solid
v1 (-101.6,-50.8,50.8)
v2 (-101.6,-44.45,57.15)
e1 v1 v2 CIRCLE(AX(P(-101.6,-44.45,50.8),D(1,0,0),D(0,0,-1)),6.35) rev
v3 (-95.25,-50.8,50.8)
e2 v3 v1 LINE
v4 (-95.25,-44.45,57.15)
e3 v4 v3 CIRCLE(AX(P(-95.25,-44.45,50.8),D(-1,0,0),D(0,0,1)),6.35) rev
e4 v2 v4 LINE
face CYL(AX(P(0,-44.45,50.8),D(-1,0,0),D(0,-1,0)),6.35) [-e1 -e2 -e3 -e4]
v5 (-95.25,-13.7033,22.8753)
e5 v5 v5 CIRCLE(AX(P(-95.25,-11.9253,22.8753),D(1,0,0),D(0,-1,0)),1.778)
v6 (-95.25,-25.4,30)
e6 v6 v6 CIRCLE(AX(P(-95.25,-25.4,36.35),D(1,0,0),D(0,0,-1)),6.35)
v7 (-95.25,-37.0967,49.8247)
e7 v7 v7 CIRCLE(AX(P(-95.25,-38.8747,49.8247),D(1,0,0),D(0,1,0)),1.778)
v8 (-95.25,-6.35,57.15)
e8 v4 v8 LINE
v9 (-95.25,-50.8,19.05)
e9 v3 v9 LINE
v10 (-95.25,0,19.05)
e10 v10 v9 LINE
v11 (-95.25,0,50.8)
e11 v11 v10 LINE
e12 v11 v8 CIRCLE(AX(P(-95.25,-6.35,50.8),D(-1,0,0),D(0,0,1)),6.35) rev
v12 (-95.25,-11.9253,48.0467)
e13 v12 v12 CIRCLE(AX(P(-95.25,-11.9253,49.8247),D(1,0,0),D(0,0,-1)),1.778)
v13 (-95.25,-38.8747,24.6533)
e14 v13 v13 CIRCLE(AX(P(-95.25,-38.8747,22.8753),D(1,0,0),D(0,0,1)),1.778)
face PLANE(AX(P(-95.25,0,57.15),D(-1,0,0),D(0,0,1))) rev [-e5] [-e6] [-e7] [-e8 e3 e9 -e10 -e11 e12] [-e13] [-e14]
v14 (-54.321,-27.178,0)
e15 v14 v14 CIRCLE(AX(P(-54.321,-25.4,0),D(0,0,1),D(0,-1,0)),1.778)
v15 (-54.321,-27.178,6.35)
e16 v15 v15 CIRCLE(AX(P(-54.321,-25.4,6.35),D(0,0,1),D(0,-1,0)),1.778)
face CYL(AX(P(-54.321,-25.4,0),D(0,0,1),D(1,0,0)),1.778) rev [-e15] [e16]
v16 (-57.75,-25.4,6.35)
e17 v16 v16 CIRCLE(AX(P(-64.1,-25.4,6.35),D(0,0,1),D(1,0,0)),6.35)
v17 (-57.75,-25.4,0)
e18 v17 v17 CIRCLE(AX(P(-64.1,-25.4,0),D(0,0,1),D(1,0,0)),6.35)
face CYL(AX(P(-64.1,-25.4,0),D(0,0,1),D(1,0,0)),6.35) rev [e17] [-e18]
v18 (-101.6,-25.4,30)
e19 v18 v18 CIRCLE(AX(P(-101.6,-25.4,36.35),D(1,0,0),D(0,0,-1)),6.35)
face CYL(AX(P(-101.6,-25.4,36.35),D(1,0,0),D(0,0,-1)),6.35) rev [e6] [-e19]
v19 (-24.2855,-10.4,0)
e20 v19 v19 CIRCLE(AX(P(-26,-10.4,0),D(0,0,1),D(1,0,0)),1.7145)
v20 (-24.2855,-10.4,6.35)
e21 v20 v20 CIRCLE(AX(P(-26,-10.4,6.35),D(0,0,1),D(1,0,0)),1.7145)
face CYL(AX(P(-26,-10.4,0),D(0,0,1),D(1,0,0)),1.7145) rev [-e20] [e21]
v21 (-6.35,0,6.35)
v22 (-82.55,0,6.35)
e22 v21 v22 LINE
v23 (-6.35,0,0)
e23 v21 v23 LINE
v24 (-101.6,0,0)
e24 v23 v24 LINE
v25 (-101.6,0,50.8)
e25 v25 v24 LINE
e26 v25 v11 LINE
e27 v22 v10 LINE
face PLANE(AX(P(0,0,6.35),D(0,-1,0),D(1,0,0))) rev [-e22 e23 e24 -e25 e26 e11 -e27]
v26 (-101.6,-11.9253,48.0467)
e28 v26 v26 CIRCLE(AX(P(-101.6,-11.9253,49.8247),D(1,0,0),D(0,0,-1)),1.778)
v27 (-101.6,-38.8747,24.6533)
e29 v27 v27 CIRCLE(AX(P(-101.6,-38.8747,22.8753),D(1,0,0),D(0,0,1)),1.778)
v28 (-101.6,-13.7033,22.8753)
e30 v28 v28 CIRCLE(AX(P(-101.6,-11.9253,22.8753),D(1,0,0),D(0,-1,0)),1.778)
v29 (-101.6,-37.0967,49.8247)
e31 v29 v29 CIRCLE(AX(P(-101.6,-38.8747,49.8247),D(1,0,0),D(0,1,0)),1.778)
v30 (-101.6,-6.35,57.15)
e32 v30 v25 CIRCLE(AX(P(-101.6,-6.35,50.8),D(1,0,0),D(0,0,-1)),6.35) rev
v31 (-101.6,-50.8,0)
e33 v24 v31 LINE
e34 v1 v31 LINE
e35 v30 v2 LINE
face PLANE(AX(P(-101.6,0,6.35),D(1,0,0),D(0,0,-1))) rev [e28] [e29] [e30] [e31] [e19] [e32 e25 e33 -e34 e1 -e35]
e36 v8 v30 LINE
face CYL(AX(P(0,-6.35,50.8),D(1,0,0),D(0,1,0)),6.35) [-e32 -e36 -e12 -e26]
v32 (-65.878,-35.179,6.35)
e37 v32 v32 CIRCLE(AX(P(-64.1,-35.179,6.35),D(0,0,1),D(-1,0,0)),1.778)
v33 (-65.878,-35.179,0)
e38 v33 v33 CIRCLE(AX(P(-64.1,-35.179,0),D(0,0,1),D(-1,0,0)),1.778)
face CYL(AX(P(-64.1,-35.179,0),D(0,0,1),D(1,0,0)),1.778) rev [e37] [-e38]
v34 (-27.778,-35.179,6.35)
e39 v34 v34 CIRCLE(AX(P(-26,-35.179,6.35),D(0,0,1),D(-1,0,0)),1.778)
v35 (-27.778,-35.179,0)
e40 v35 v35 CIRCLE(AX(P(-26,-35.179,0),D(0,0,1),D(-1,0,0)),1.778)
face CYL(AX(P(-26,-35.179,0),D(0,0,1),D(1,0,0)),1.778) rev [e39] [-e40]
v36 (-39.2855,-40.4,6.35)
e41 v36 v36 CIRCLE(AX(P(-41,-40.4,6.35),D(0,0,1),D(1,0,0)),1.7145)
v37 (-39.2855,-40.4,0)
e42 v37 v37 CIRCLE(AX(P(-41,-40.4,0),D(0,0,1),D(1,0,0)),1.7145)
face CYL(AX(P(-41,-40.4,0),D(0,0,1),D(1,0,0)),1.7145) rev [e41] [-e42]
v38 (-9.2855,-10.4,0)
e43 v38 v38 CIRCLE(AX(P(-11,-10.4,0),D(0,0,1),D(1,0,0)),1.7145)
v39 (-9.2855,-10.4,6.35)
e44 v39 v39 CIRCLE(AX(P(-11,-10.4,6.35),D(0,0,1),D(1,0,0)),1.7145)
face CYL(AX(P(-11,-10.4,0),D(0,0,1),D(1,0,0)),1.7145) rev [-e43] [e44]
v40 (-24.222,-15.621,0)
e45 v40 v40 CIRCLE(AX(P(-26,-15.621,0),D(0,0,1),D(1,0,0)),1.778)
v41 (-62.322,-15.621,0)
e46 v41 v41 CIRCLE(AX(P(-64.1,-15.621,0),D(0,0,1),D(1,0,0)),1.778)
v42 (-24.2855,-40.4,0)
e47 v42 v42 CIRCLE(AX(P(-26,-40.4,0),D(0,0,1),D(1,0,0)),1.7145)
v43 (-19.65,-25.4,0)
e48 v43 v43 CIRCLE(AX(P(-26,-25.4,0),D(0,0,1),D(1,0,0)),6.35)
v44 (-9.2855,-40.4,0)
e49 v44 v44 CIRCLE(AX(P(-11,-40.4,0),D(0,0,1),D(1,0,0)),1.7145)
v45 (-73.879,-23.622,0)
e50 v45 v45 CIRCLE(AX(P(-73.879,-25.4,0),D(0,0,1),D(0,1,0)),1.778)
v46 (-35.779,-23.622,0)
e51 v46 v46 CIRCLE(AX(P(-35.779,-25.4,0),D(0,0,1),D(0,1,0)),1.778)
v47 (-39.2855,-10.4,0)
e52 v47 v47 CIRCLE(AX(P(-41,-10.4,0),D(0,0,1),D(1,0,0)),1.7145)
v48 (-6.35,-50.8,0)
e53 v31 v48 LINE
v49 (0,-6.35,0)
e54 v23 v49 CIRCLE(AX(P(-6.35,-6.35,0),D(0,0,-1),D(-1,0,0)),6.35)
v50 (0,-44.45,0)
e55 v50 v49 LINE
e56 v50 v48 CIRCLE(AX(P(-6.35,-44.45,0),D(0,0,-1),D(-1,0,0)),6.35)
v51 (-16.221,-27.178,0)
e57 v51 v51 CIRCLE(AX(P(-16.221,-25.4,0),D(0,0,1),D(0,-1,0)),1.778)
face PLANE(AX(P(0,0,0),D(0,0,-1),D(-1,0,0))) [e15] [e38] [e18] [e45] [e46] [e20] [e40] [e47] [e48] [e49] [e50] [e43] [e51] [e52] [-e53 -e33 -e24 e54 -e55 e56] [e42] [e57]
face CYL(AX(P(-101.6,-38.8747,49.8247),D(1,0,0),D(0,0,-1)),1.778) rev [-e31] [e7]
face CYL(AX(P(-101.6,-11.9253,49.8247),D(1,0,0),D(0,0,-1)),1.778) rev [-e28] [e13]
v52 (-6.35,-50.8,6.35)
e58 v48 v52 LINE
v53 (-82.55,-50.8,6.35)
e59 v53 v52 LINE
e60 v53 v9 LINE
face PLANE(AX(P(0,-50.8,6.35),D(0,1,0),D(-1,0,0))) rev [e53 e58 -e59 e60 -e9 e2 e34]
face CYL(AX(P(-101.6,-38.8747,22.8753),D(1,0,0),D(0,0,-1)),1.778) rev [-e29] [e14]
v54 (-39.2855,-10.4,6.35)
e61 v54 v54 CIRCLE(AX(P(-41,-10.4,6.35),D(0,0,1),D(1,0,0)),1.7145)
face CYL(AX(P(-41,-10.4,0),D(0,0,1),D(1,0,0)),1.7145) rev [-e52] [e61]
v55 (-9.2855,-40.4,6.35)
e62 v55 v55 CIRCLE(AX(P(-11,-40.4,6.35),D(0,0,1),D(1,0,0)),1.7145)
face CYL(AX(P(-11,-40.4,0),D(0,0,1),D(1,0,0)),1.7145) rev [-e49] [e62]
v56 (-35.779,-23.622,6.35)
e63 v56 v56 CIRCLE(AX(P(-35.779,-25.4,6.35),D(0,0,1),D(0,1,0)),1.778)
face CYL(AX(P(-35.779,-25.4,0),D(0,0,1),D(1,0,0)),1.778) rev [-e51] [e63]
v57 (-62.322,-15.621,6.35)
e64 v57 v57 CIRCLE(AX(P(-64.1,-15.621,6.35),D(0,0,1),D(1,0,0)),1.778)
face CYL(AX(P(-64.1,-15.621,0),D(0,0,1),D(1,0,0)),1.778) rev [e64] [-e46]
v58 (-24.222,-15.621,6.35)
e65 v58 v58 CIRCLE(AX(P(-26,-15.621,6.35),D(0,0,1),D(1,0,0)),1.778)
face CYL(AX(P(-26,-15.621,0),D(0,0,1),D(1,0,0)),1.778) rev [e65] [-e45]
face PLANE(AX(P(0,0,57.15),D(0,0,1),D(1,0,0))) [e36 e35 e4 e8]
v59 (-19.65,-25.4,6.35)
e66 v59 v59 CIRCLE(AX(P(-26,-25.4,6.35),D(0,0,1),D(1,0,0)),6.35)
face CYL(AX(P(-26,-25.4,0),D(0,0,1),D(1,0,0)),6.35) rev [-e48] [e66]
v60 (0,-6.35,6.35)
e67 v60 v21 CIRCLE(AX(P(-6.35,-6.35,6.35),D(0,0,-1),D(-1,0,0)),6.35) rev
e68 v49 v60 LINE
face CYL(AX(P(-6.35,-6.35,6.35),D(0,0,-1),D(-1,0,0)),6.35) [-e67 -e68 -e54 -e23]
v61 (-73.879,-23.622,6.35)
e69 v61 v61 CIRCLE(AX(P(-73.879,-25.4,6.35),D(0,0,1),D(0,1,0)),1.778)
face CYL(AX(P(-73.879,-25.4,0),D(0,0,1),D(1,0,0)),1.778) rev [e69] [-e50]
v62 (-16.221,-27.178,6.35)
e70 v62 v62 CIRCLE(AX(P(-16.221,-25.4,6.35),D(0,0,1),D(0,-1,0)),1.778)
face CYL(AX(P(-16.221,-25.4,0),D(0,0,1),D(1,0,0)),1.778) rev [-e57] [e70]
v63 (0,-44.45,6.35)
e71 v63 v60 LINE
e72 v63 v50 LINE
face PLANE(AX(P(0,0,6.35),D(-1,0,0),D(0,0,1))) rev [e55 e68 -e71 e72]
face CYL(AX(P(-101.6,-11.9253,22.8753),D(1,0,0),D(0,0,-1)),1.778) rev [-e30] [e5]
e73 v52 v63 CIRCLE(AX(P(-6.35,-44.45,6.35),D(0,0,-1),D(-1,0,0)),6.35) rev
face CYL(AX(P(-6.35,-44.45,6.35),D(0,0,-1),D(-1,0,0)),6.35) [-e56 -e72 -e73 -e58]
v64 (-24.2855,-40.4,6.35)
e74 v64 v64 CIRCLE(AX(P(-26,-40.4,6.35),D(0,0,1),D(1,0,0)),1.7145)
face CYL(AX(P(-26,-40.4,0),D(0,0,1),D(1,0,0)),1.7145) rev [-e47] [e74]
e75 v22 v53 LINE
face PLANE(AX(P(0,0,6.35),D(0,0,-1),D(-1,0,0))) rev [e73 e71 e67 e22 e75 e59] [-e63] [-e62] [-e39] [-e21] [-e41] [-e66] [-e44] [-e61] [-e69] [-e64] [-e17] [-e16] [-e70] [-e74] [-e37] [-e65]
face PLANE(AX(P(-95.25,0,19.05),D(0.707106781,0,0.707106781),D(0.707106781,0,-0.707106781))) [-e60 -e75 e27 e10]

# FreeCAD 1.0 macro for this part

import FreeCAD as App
import Part
import Sketcher
Q = App.Units.Quantity


def edges_at(feature, points):
    """Names of the edges that pass closest to the given points."""
    edges = feature.Shape.Edges
    near = lambda p: min(range(len(edges)), key=lambda i: edges[i].distToShape(Part.Vertex(*p))[0])
    return sorted({f"Edge{near(p) + 1}" for p in points})

doc = App.newDocument("Part")
body = doc.addObject("PartDesign::Body", "Body")

# Sketch on XY plane
sketch1 = body.newObject("Sketcher::SketchObject", "Sketch")
sketch1.AttachmentSupport = (doc.getObject("XY_Plane"), [""])
sketch1.MapMode = "FlatFace"
sketch1.addGeometry([
    Part.LineSegment(App.Vector(-101.6, 0, 0), App.Vector(-101.6, -50.8, 0)),
    Part.LineSegment(App.Vector(-101.6, -50.8, 0), App.Vector(0, -50.8, 0)),
    Part.LineSegment(App.Vector(0, -50.8, 0), App.Vector(0, 0, 0)),
    Part.LineSegment(App.Vector(0, 0, 0), App.Vector(-101.6, 0, 0)),
], False)
sketch1.addConstraint([
    Sketcher.Constraint("Coincident", 0, 2, 1, 1),
    Sketcher.Constraint("Coincident", 1, 2, 2, 1),
    Sketcher.Constraint("Coincident", 2, 2, 3, 1),
    Sketcher.Constraint("Coincident", 3, 2, 0, 1),
    Sketcher.Constraint("Vertical", 0),
    Sketcher.Constraint("Horizontal", 1),
    Sketcher.Constraint("Vertical", 2),
    Sketcher.Constraint("Horizontal", 3),
    Sketcher.Constraint("Coincident", 2, 2, -1, 1),
    Sketcher.Constraint("DistanceX", 1, 1, 1, 2, Q("4 in")),
    Sketcher.Constraint("DistanceY", 0, 2, 0, 1, Q("2 in")),
])
pad1 = body.newObject("PartDesign::Pad", "Pad")
pad1.Profile = sketch1
pad1.Length = Q("0.25 in")

# Sketch on XY plane
sketch2 = body.newObject("Sketcher::SketchObject", "Sketch001")
sketch2.AttachmentSupport = (doc.getObject("XY_Plane"), [""])
sketch2.MapMode = "FlatFace"
sketch2.AttachmentOffset = App.Placement(App.Vector(0, 0, 0.25 * 25.4), App.Rotation())
sketch2.addGeometry([
    Part.Circle(App.Vector(-11, -10.4, 0), App.Vector(0, 0, 1), 1.7145),  # 0
    Part.Circle(App.Vector(-41, -10.4, 0), App.Vector(0, 0, 1), 1.7145),  # 1
    Part.Circle(App.Vector(-41, -40.4, 0), App.Vector(0, 0, 1), 1.7145),  # 2
    Part.Circle(App.Vector(-11, -40.4, 0), App.Vector(0, 0, 1), 1.7145),  # 3
    Part.Circle(App.Vector(-26, -40.4, 0), App.Vector(0, 0, 1), 1.7145),  # 4
    Part.Circle(App.Vector(-26, -10.4, 0), App.Vector(0, 0, 1), 1.7145),  # 5
], False)
sketch2.addConstraint([
    Sketcher.Constraint("Equal", 0, 1),
    Sketcher.Constraint("Equal", 1, 2),
    Sketcher.Constraint("Equal", 2, 3),
    Sketcher.Constraint("Equal", 3, 4),
    Sketcher.Constraint("Equal", 4, 5),
    Sketcher.Constraint("Horizontal", 0, 3, 1, 3),
    Sketcher.Constraint("Horizontal", 2, 3, 3, 3),
    Sketcher.Constraint("Horizontal", 3, 3, 4, 3),
    Sketcher.Constraint("Horizontal", 1, 3, 5, 3),
    Sketcher.Constraint("Vertical", 1, 3, 2, 3),
    Sketcher.Constraint("Vertical", 0, 3, 3, 3),
    Sketcher.Constraint("Vertical", 4, 3, 5, 3),
    Sketcher.Constraint("Diameter", 0, Q("0.135 in")),
    Sketcher.Constraint("DistanceX", 0, 3, -1, 1, 11.0),
    Sketcher.Constraint("DistanceY", 0, 3, -1, 1, 10.4),
    Sketcher.Constraint("DistanceX", 1, 3, -1, 1, 41.0),
    Sketcher.Constraint("DistanceY", 2, 3, -1, 1, 40.4),
    Sketcher.Constraint("DistanceX", 4, 3, -1, 1, 26.0),
])
pocket1 = body.newObject("PartDesign::Pocket", "Pocket")
pocket1.Profile = sketch2
pocket1.Length = Q("0.25 in")

# Sketch on XY plane
sketch3 = body.newObject("Sketcher::SketchObject", "Sketch002")
sketch3.AttachmentSupport = (doc.getObject("XY_Plane"), [""])
sketch3.MapMode = "FlatFace"
sketch3.AttachmentOffset = App.Placement(App.Vector(0, 0, 0.25 * 25.4), App.Rotation())
sketch3.addGeometry(Part.Circle(App.Vector(-26, -15.621, 0), App.Vector(0, 0, 1), 1.778), False)
sketch3.addConstraint([
    Sketcher.Constraint("Diameter", 0, Q("0.14 in")),
    Sketcher.Constraint("DistanceY", 0, 3, -1, 1, Q("0.615 in")),
    Sketcher.Constraint("DistanceX", 0, 3, -1, 1, 26.0),
])
pocket2 = body.newObject("PartDesign::Pocket", "Pocket001")
pocket2.Profile = sketch3
pocket2.Length = Q("0.25 in")

# Sketch on XY plane
sketch4 = body.newObject("Sketcher::SketchObject", "Sketch003")
sketch4.AttachmentSupport = (doc.getObject("XY_Plane"), [""])
sketch4.MapMode = "FlatFace"
sketch4.AttachmentOffset = App.Placement(App.Vector(0, 0, 0.25 * 25.4), App.Rotation())
sketch4.addGeometry(Part.Circle(App.Vector(-26, -25.4, 0), App.Vector(0, 0, 1), 6.35), False)
sketch4.addConstraint([
    Sketcher.Constraint("Diameter", 0, Q("0.5 in")),
    Sketcher.Constraint("DistanceY", 0, 3, -1, 1, Q("1 in")),
    Sketcher.Constraint("DistanceX", 0, 3, -1, 1, 26.0),
])
pocket3 = body.newObject("PartDesign::Pocket", "Pocket002")
pocket3.Profile = sketch4
pocket3.Length = Q("0.25 in")
doc.recompute()

datumline = body.newObject("PartDesign::Line", "DatumLine")
datumline.Placement = App.Placement(App.Vector(-26, -25.4, 0), App.Rotation(App.Vector(0, 0, 1), App.Vector(0, 0, 1)))
polarpattern = body.newObject("PartDesign::PolarPattern", "PolarPattern")
polarpattern.Originals = [pocket2]
polarpattern.Axis = (datumline, [""])
polarpattern.Angle = 360
polarpattern.Occurrences = 4
body.Tip = polarpattern

# Sketch on XY plane
sketch5 = body.newObject("Sketcher::SketchObject", "Sketch004")
sketch5.AttachmentSupport = (doc.getObject("XY_Plane"), [""])
sketch5.MapMode = "FlatFace"
sketch5.AttachmentOffset = App.Placement(App.Vector(0, 0, 0.25 * 25.4), App.Rotation())
sketch5.addGeometry([
    Part.LineSegment(App.Vector(-101.6, 0, 0), App.Vector(-101.6, -50.8, 0)),
    Part.LineSegment(App.Vector(-101.6, -50.8, 0), App.Vector(-95.25, -50.8, 0)),
    Part.LineSegment(App.Vector(-95.25, -50.8, 0), App.Vector(-95.25, 0, 0)),
    Part.LineSegment(App.Vector(-95.25, 0, 0), App.Vector(-101.6, 0, 0)),
], False)
sketch5.addConstraint([
    Sketcher.Constraint("Coincident", 0, 2, 1, 1),
    Sketcher.Constraint("Coincident", 1, 2, 2, 1),
    Sketcher.Constraint("Coincident", 2, 2, 3, 1),
    Sketcher.Constraint("Coincident", 3, 2, 0, 1),
    Sketcher.Constraint("Vertical", 0),
    Sketcher.Constraint("Horizontal", 1),
    Sketcher.Constraint("Vertical", 2),
    Sketcher.Constraint("Horizontal", 3),
    Sketcher.Constraint("PointOnObject", 2, 2, -1),
    Sketcher.Constraint("DistanceY", 0, 2, 0, 1, Q("2 in")),
    Sketcher.Constraint("DistanceX", 0, 2, -1, 1, Q("4 in")),
    Sketcher.Constraint("DistanceX", 1, 1, 1, 2, Q("0.25 in")),
])
pad2 = body.newObject("PartDesign::Pad", "Pad001")
pad2.Profile = sketch5
pad2.Length = Q("2 in")

# Sketch on YZ plane
sketch6 = body.newObject("Sketcher::SketchObject", "Sketch005")
sketch6.AttachmentSupport = (doc.getObject("YZ_Plane"), [""])
sketch6.MapMode = "FlatFace"
sketch6.AttachmentOffset = App.Placement(App.Vector(0, 0, -3.75 * 25.4), App.Rotation())
sketch6.addGeometry(Part.Circle(App.Vector(-25.4, 36.35, 0), App.Vector(0, 0, 1), 6.35), False)
sketch6.addConstraint([
    Sketcher.Constraint("Diameter", 0, Q("0.5 in")),
    Sketcher.Constraint("DistanceX", 0, 3, -1, 1, Q("1 in")),
    Sketcher.Constraint("DistanceY", -1, 1, 0, 3, 36.35),
])
pocket4 = body.newObject("PartDesign::Pocket", "Pocket003")
pocket4.Profile = sketch6
pocket4.Length = Q("0.25 in")

# Sketch on YZ plane
sketch7 = body.newObject("Sketcher::SketchObject", "Sketch006")
sketch7.AttachmentSupport = (doc.getObject("YZ_Plane"), [""])
sketch7.MapMode = "FlatFace"
sketch7.AttachmentOffset = App.Placement(App.Vector(0, 0, -3.75 * 25.4), App.Rotation())
sketch7.addGeometry(Part.Circle(App.Vector(-11.9253, 49.8247, 0), App.Vector(0, 0, 1), 1.778), False)
sketch7.addConstraint([
    Sketcher.Constraint("Diameter", 0, Q("0.14 in")),
    Sketcher.Constraint("DistanceX", 0, 3, -1, 1, Q("0.4695 in")),
    Sketcher.Constraint("DistanceY", -1, 1, 0, 3, 49.8247),
])
pocket5 = body.newObject("PartDesign::Pocket", "Pocket004")
pocket5.Profile = sketch7
pocket5.Length = Q("0.25 in")
doc.recompute()

datumline2 = body.newObject("PartDesign::Line", "DatumLine001")
datumline2.Placement = App.Placement(App.Vector(0, -25.4, 36.35), App.Rotation(App.Vector(0, 0, 1), App.Vector(1, 0, 0)))
polarpattern2 = body.newObject("PartDesign::PolarPattern", "PolarPattern001")
polarpattern2.Originals = [pocket5]
polarpattern2.Axis = (datumline2, [""])
polarpattern2.Angle = 360
polarpattern2.Occurrences = 4
body.Tip = polarpattern2
doc.recompute()

linearpattern = body.newObject("PartDesign::LinearPattern", "LinearPattern")
linearpattern.Originals = [pocket3, pocket2]
linearpattern.Direction = (doc.getObject("X_Axis"), [""])
linearpattern.Mode = "offset"
linearpattern.Offset = Q("1.5 in")
linearpattern.Occurrences = 2
linearpattern.Reversed = True
body.Tip = linearpattern

# Sketch on XY plane
sketch8 = body.newObject("Sketcher::SketchObject", "Sketch007")
sketch8.AttachmentSupport = (doc.getObject("XY_Plane"), [""])
sketch8.MapMode = "FlatFace"
sketch8.AttachmentOffset = App.Placement(App.Vector(0, 0, 0.25 * 25.4), App.Rotation())
sketch8.addGeometry(Part.Circle(App.Vector(-73.879, -25.4, 0), App.Vector(0, 0, 1), 1.778), False)
sketch8.addConstraint([
    Sketcher.Constraint("Diameter", 0, Q("0.14 in")),
    Sketcher.Constraint("DistanceY", 0, 3, -1, 1, Q("1 in")),
    Sketcher.Constraint("DistanceX", 0, 3, -1, 1, 73.879),
])
pocket6 = body.newObject("PartDesign::Pocket", "Pocket005")
pocket6.Profile = sketch8
pocket6.Length = Q("0.25 in")

# Sketch on XY plane
sketch9 = body.newObject("Sketcher::SketchObject", "Sketch008")
sketch9.AttachmentSupport = (doc.getObject("XY_Plane"), [""])
sketch9.MapMode = "FlatFace"
sketch9.AttachmentOffset = App.Placement(App.Vector(0, 0, 0.25 * 25.4), App.Rotation())
sketch9.addGeometry(Part.Circle(App.Vector(-64.1, -35.179, 0), App.Vector(0, 0, 1), 1.778), False)
sketch9.addConstraint([
    Sketcher.Constraint("Diameter", 0, Q("0.14 in")),
    Sketcher.Constraint("DistanceY", 0, 3, -1, 1, Q("1.385 in")),
    Sketcher.Constraint("DistanceX", 0, 3, -1, 1, 64.1),
])
pocket7 = body.newObject("PartDesign::Pocket", "Pocket006")
pocket7.Profile = sketch9
pocket7.Length = Q("0.25 in")

# Sketch on XY plane
sketch10 = body.newObject("Sketcher::SketchObject", "Sketch009")
sketch10.AttachmentSupport = (doc.getObject("XY_Plane"), [""])
sketch10.MapMode = "FlatFace"
sketch10.AttachmentOffset = App.Placement(App.Vector(0, 0, 0.25 * 25.4), App.Rotation())
sketch10.addGeometry(Part.Circle(App.Vector(-54.321, -25.4, 0), App.Vector(0, 0, 1), 1.778), False)
sketch10.addConstraint([
    Sketcher.Constraint("Diameter", 0, Q("0.14 in")),
    Sketcher.Constraint("DistanceY", 0, 3, -1, 1, Q("1 in")),
    Sketcher.Constraint("DistanceX", 0, 3, -1, 1, 54.321),
])
pocket8 = body.newObject("PartDesign::Pocket", "Pocket007")
pocket8.Profile = sketch10
pocket8.Length = Q("0.25 in")

# Sketch on XZ plane
sketch11 = body.newObject("Sketcher::SketchObject", "Sketch010")
sketch11.AttachmentSupport = (doc.getObject("XZ_Plane"), [""])
sketch11.MapMode = "FlatFace"
sketch11.AttachmentOffset = App.Placement(App.Vector(0, 0, 2 * 25.4), App.Rotation())
sketch11.addGeometry([
    Part.LineSegment(App.Vector(-95.25, 19.05, 0), App.Vector(-95.25, 6.35, 0)),
    Part.LineSegment(App.Vector(-95.25, 6.35, 0), App.Vector(-82.55, 6.35, 0)),
    Part.LineSegment(App.Vector(-82.55, 6.35, 0), App.Vector(-95.25, 19.05, 0)),
], False)
sketch11.addConstraint([
    Sketcher.Constraint("Coincident", 0, 2, 1, 1),
    Sketcher.Constraint("Coincident", 1, 2, 2, 1),
    Sketcher.Constraint("Coincident", 2, 2, 0, 1),
    Sketcher.Constraint("Vertical", 0),
    Sketcher.Constraint("Horizontal", 1),
    Sketcher.Constraint("Equal", 1, 0),
    Sketcher.Constraint("DistanceX", 1, 1, 1, 2, Q("0.5 in")),
    Sketcher.Constraint("DistanceX", 0, 2, -1, 1, Q("3.75 in")),
    Sketcher.Constraint("DistanceY", -1, 1, 0, 2, Q("0.25 in")),
])
pad3 = body.newObject("PartDesign::Pad", "Pad002")
pad3.Profile = sketch11
pad3.Length = Q("2 in")
pad3.Reversed = True
doc.recompute()

fillet = body.newObject("PartDesign::Fillet", "Fillet")
fillet.Base = (pad3, edges_at(pad3, [
    (-98.425, -50.8, 57.15),
    (-98.425, 0, 57.15),
    (0, -50.8, 3.175),
    (0, 0, 3.175),
]))
fillet.Radius = Q("0.25 in")

doc.recompute()
